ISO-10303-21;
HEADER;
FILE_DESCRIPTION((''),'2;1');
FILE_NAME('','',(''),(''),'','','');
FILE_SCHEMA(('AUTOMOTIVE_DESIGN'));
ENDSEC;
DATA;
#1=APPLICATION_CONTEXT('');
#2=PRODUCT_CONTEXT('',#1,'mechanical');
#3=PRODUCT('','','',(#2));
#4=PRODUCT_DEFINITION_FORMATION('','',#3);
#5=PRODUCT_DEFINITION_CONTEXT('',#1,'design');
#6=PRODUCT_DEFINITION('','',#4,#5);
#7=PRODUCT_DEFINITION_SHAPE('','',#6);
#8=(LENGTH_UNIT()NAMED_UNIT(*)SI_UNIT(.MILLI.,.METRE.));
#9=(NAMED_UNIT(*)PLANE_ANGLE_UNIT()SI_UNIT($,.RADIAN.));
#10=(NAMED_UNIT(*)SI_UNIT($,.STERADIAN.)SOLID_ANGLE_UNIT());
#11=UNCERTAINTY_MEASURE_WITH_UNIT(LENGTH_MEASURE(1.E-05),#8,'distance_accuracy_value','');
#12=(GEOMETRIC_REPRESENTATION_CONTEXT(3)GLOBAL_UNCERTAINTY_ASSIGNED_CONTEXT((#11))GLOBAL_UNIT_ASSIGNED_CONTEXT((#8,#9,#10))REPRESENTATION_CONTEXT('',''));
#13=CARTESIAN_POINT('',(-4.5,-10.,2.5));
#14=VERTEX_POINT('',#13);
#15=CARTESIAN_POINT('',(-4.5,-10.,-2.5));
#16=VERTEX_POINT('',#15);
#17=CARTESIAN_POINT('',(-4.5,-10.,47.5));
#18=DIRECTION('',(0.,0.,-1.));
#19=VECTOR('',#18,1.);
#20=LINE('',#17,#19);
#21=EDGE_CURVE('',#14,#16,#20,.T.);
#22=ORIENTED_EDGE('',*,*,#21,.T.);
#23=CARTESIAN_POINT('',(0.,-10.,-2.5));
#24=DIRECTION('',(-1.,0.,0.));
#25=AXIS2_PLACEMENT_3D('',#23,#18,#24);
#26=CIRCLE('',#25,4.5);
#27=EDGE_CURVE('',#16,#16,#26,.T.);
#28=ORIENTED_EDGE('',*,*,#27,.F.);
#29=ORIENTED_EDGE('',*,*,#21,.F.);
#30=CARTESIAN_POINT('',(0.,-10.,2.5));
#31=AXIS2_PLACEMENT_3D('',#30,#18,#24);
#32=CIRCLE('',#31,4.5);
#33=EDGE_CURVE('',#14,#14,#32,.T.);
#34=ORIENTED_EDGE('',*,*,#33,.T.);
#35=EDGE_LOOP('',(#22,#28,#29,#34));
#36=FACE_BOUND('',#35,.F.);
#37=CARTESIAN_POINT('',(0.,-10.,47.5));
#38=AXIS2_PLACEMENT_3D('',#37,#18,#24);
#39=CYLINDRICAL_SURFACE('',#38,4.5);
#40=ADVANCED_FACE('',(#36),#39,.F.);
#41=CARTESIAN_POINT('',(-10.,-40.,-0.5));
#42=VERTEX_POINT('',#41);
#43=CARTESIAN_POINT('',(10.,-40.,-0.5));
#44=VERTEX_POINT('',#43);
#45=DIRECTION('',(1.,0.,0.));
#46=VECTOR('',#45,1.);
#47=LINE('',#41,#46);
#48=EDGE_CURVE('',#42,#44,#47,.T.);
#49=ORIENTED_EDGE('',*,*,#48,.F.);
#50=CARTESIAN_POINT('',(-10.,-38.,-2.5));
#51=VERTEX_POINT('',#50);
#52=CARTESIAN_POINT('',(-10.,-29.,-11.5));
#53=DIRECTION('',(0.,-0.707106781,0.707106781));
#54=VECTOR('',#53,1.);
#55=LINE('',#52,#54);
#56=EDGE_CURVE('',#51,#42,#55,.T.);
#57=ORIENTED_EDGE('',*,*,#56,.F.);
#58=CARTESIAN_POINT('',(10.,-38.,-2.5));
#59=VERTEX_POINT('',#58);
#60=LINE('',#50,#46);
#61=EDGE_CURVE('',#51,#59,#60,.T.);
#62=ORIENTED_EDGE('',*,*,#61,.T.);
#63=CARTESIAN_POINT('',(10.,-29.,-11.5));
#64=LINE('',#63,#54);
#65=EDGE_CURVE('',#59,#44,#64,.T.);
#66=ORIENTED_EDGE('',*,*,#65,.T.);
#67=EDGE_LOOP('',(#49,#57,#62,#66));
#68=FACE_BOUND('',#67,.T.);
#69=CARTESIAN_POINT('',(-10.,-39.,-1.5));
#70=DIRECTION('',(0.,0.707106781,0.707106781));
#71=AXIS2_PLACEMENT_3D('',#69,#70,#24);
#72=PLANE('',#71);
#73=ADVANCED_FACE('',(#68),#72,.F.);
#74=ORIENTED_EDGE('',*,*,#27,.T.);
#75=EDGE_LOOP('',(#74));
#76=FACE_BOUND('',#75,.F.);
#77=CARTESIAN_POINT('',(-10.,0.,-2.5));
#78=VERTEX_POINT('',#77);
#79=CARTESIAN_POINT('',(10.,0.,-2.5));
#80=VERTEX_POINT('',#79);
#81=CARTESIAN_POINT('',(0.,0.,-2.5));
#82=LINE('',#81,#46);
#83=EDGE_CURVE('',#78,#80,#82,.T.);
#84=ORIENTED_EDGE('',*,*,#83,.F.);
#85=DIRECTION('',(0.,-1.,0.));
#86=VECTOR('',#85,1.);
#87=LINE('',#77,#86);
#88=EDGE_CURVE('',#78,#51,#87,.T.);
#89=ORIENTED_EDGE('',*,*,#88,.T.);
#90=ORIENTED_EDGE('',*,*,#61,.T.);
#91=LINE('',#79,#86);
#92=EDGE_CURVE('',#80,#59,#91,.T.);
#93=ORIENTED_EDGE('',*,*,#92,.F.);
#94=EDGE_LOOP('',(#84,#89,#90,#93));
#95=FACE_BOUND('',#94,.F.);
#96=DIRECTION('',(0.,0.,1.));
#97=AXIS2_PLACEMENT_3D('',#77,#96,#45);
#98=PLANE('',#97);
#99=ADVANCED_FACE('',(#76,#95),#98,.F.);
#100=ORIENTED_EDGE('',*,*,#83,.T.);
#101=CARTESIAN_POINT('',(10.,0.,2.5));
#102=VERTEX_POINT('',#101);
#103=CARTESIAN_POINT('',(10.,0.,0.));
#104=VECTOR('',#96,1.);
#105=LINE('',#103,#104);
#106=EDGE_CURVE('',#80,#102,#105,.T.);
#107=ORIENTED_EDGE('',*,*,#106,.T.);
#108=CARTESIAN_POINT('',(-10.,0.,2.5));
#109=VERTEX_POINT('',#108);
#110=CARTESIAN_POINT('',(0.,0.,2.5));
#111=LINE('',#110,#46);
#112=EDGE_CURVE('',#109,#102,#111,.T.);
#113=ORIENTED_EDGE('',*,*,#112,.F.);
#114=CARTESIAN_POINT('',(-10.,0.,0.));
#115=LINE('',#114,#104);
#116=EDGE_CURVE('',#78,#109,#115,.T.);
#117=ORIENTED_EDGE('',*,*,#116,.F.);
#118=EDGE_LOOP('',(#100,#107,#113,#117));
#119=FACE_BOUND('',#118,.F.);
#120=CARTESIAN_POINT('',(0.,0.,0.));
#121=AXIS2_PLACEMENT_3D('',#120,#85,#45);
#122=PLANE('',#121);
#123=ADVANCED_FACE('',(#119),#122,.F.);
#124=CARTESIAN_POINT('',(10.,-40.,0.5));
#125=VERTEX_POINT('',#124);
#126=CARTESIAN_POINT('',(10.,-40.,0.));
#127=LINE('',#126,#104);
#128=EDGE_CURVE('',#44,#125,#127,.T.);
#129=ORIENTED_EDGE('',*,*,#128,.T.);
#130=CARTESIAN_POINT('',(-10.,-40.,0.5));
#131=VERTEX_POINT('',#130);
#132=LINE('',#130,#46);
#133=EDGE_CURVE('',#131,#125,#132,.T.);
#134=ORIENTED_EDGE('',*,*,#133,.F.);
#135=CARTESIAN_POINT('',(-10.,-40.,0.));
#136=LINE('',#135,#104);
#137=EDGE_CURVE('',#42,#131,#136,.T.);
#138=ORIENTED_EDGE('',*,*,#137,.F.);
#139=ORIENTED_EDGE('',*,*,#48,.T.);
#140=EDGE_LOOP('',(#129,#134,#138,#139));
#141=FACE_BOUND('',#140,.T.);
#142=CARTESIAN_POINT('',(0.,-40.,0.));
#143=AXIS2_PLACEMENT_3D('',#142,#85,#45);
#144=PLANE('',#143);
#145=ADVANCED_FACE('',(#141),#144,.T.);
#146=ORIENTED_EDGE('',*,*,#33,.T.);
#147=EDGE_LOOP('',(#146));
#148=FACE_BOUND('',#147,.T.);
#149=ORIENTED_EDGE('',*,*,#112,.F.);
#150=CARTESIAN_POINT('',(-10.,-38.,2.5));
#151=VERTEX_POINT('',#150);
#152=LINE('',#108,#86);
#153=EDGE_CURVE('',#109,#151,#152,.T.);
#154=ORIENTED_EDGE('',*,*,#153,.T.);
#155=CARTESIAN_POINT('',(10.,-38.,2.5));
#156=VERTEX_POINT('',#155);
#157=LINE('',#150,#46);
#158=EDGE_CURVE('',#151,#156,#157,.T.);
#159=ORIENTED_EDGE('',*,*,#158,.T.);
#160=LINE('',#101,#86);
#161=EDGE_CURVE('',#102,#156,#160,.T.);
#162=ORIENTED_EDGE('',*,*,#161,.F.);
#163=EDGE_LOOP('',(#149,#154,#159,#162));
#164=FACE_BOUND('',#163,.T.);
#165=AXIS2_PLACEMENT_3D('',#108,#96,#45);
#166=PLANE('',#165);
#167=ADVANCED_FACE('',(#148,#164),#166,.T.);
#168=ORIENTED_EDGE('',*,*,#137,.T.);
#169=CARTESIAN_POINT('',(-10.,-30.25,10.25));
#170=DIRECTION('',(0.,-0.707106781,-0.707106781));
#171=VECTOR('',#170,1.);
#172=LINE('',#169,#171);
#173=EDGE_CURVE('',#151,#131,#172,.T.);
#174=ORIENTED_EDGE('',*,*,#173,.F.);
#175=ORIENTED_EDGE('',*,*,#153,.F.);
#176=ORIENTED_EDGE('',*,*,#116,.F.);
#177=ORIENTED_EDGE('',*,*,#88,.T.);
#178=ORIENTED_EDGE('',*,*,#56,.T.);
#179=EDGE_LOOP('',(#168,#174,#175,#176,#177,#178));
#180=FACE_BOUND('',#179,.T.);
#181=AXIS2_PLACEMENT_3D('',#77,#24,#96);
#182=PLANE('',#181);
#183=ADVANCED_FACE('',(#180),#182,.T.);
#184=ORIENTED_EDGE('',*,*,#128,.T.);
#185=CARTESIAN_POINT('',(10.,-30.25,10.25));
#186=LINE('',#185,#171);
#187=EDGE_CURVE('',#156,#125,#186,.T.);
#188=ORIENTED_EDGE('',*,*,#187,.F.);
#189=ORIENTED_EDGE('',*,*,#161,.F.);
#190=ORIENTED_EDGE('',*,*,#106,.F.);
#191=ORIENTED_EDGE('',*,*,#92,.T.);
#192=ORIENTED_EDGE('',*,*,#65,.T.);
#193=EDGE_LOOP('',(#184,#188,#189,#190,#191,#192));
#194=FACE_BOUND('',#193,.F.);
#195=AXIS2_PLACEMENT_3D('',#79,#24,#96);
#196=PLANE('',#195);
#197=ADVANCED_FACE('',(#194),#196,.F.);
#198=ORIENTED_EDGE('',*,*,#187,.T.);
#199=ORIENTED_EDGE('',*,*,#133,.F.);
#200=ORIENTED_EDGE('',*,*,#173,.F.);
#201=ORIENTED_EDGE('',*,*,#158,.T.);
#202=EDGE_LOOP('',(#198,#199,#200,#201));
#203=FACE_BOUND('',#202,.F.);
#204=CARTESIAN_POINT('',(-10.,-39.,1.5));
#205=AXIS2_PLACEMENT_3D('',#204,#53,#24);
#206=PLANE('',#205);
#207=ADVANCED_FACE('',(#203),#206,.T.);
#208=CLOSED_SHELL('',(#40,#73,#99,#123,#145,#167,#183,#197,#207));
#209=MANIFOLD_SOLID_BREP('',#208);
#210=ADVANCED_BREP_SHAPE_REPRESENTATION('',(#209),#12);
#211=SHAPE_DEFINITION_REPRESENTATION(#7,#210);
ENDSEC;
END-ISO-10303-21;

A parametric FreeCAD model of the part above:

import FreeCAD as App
import Part
import Sketcher
from FreeCAD import Vector
Q = App.Units.Quantity


def edges_at(feature, points):
    """Names of the edges that pass closest to the given points."""
    edges = feature.Shape.Edges
    near = lambda p: min(range(len(edges)), key=lambda i: edges[i].distToShape(Part.Vertex(*p))[0])
    return sorted({f"Edge{near(p) + 1}" for p in points})


def add_polygon(sketch, points):
    """Adds a closed chain of lines whose ends are joined by coincident constraints."""
    first, n = sketch.GeometryCount, len(points)
    for a, b in zip(points, points[1:] + points[:1]):
        sketch.addGeometry(Part.LineSegment(App.Vector(*a, 0), App.Vector(*b, 0)), False)
    for i in range(n):
        sketch.addConstraint(Sketcher.Constraint("Coincident", first + i, 2, first + (i + 1) % n, 1))

doc = App.newDocument("Part")
body = doc.addObject("PartDesign::Body", "Body")

sketch1 = body.newObject("Sketcher::SketchObject", "Sketch")
sketch1.AttachmentSupport = (doc.getObject("XZ_Plane"), [""])
sketch1.MapMode = "FlatFace"
add_polygon(sketch1, [(-10, 2), (-10, -2), (10, -2), (10, 2)])
sketch1.addConstraint([
    Sketcher.Constraint("Vertical", 0),
    Sketcher.Constraint("Horizontal", 1),
    Sketcher.Constraint("Vertical", 2),
    Sketcher.Constraint("Horizontal", 3),
    Sketcher.Constraint("Symmetric", 0, 2, 2, 2, -1, 1),
    Sketcher.Constraint("DistanceX", 1, 1, 1, 2, Q("20 mm")),
    Sketcher.Constraint("DistanceY", 0, 2, 0, 1, Q("5 mm")),
])
pad1 = body.newObject("PartDesign::Pad", "Pad")
pad1.Profile = sketch1
pad1.Length = 40

sketch2 = body.newObject("Sketcher::SketchObject", "Sketch001")
sketch2.AttachmentSupport = (doc.getObject("XY_Plane"), [""])
sketch2.MapMode = "FlatFace"
sketch2.AttachmentOffset = App.Placement(Vector(0, 0, 2.5), App.Rotation())
sketch2.addGeometry(Part.Circle(Vector(0, -10, 0), Vector(0, 0, 1), 4.5), False)
sketch2.addConstraint([
    Sketcher.Constraint("PointOnObject", 0, 3, -2),
    Sketcher.Constraint("Diameter", 0, Q("9 mm")),
    Sketcher.Constraint("DistanceY", 0, 3, -1, 1, Q("10 mm")),
])
doc.recompute()
hole = body.newObject("PartDesign::Hole", "Hole")
hole.Profile = sketch2
hole.ThreadType = "None"
hole.Diameter = 9
hole.DepthType = "ThroughAll"
doc.recompute()

chamfer = body.newObject("PartDesign::Chamfer", "Chamfer")
chamfer.Base = (hole, edges_at(hole, [(0, -40, 2.5), (0, -40, -2.5)]))
chamfer.Size = 2

doc.recompute()
